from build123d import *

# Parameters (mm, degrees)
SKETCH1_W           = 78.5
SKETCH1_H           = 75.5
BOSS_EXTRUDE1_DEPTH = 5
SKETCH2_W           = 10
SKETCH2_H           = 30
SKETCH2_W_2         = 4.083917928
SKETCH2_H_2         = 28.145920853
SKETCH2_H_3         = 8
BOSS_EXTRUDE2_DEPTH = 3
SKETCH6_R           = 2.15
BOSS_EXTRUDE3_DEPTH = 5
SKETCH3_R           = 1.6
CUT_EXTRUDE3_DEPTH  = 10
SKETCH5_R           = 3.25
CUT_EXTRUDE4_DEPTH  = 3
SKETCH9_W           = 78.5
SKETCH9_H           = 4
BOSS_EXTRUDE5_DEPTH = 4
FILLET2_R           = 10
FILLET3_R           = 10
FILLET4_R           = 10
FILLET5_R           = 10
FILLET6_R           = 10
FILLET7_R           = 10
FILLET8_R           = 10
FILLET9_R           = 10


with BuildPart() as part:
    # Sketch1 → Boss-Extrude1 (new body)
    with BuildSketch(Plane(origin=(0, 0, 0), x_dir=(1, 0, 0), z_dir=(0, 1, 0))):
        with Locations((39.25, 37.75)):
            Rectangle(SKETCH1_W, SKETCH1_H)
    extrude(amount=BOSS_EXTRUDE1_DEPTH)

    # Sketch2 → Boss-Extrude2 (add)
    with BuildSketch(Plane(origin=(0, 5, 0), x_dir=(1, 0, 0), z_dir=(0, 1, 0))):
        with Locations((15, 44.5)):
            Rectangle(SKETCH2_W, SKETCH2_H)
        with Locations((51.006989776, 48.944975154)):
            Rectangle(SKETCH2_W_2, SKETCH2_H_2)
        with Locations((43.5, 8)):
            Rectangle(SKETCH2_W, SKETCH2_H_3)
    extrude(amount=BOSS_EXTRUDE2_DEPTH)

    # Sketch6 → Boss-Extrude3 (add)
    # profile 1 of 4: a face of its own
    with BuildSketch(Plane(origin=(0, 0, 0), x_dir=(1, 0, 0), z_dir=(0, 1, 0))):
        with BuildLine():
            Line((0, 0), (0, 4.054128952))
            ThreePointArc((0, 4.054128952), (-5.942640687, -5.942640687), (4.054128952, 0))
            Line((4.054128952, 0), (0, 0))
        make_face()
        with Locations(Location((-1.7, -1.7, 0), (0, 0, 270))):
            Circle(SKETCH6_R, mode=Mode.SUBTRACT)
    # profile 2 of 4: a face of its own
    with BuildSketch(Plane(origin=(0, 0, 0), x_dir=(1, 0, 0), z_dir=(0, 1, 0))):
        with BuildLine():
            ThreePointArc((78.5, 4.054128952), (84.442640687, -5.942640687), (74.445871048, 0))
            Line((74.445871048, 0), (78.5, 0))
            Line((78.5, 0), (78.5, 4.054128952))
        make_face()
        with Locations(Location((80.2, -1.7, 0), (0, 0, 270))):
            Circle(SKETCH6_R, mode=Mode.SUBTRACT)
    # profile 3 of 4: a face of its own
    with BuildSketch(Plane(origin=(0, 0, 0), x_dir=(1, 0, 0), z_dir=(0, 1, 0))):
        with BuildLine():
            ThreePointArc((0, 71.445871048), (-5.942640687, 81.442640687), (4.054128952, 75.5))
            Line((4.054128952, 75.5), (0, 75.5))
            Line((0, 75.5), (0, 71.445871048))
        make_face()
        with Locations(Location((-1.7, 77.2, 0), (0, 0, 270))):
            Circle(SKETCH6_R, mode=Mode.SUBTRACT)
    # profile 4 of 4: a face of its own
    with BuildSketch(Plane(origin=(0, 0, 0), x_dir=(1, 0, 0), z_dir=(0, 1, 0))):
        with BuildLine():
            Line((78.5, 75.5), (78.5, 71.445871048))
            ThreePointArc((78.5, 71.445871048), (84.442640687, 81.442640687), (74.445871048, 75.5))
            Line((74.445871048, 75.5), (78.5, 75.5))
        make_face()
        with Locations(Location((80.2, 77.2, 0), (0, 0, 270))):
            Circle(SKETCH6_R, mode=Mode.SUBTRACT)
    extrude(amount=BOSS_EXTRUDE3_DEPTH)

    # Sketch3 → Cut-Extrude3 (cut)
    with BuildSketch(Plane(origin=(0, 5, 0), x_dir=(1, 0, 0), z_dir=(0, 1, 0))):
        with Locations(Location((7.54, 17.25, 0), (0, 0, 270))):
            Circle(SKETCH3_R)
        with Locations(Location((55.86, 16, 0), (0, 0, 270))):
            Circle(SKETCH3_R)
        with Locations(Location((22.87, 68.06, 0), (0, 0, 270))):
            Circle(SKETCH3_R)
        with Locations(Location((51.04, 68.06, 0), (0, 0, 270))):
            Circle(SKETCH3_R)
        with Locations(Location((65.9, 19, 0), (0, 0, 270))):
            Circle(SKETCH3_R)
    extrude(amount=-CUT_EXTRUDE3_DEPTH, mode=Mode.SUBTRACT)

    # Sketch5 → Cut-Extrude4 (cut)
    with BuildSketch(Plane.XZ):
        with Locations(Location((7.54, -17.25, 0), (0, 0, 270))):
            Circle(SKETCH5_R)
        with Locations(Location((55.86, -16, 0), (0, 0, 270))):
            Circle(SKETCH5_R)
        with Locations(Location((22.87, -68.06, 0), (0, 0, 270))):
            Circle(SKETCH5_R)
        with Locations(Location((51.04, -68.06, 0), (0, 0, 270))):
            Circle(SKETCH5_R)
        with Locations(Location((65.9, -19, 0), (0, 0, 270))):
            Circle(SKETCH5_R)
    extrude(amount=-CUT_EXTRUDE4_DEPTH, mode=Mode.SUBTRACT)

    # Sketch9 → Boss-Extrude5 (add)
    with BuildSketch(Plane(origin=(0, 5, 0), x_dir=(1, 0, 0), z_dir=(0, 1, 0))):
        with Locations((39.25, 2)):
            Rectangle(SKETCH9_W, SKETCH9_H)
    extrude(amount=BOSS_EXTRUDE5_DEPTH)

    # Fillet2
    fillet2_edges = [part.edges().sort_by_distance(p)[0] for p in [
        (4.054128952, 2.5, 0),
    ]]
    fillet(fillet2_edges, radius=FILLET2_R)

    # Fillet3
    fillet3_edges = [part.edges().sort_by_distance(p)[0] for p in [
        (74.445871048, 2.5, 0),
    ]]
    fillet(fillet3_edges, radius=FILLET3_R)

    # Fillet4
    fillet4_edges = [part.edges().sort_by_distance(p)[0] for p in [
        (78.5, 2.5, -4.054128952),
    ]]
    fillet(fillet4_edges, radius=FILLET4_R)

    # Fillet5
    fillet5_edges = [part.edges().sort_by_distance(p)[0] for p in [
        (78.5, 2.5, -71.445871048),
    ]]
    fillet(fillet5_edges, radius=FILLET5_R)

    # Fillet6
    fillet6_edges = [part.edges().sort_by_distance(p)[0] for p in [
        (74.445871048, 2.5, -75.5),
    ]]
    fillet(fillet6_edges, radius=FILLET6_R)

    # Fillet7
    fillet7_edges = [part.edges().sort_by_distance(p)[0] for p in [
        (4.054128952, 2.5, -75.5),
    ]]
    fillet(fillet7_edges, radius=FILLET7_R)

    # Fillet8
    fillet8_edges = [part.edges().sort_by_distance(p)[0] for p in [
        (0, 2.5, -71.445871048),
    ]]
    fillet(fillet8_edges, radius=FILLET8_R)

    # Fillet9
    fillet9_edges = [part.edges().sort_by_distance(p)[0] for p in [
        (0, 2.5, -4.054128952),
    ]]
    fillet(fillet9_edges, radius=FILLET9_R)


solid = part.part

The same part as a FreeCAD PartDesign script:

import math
import FreeCAD as App
import Part
import Sketcher

V = App.Vector
Q = App.Units.Quantity


def edges_at(feature, points):
    """Names of the edges that pass closest to the given points."""
    edges = feature.Shape.Edges
    near = lambda p: min(range(len(edges)), key=lambda i: edges[i].distToShape(Part.Vertex(*p))[0])
    return sorted({f"Edge{near(p) + 1}" for p in points})


def add_polygon(sketch, points):
    """Adds a closed chain of lines whose ends are joined by coincident constraints."""
    first, n = sketch.GeometryCount, len(points)
    for a, b in zip(points, points[1:] + points[:1]):
        sketch.addGeometry(Part.LineSegment(App.Vector(*a, 0), App.Vector(*b, 0)), False)
    for i in range(n):
        sketch.addConstraint(Sketcher.Constraint("Coincident", first + i, 2, first + (i + 1) % n, 1))

doc = App.newDocument("Part")
body = doc.addObject("PartDesign::Body", "Body")

# Sketch on XZ plane
sketch1 = body.newObject("Sketcher::SketchObject", "Sketch")
sketch1.AttachmentSupport = (doc.getObject("XZ_Plane"), [""])
sketch1.MapMode = "FlatFace"
add_polygon(sketch1, [(0, -75.5), (0, 0), (78.5, 0), (78.5, -75.5)])  # lines 0-3
sketch1.addConstraint(Sketcher.Constraint("Vertical", 0))
sketch1.addConstraint(Sketcher.Constraint("Horizontal", 1))
sketch1.addConstraint(Sketcher.Constraint("Vertical", 2))
sketch1.addConstraint(Sketcher.Constraint("Horizontal", 3))
sketch1.addConstraint(Sketcher.Constraint("Coincident", 0, 2, -1, 1))
sketch1.addConstraint(Sketcher.Constraint("DistanceX", 1, 1, 1, 2, Q("78.5 mm")))
sketch1.addConstraint(Sketcher.Constraint("DistanceY", 0, 1, 0, 2, Q("75.5 mm")))
pad1 = body.newObject("PartDesign::Pad", "Pad")
pad1.Profile = sketch1
pad1.Length = 5
pad1.Reversed = True

# Sketch on XZ plane
sketch2 = body.newObject("Sketcher::SketchObject", "Sketch001")
sketch2.AttachmentSupport = (doc.getObject("XZ_Plane"), [""])
sketch2.MapMode = "FlatFace"
sketch2.AttachmentOffset = App.Placement(V(0, 0, -5), App.Rotation())
add_polygon(sketch2, [(10, -59.5), (10, -29.5), (20, -29.5), (20, -59.5)])  # lines 0-3
add_polygon(sketch2, [(48.965031, -63.017936), (48.965031, -34.872015), (53.048949, -34.872015), (53.048949, -63.017936)])  # lines 4-7
add_polygon(sketch2, [(38.5, -12), (38.5, -4), (48.5, -4), (48.5, -12)])  # lines 8-11
sketch2.addConstraint(Sketcher.Constraint("Vertical", 0))
sketch2.addConstraint(Sketcher.Constraint("Horizontal", 1))
sketch2.addConstraint(Sketcher.Constraint("Vertical", 2))
sketch2.addConstraint(Sketcher.Constraint("Horizontal", 3))
sketch2.addConstraint(Sketcher.Constraint("Vertical", 4))
sketch2.addConstraint(Sketcher.Constraint("Horizontal", 5))
sketch2.addConstraint(Sketcher.Constraint("Vertical", 6))
sketch2.addConstraint(Sketcher.Constraint("Horizontal", 7))
sketch2.addConstraint(Sketcher.Constraint("Vertical", 8))
sketch2.addConstraint(Sketcher.Constraint("Horizontal", 9))
sketch2.addConstraint(Sketcher.Constraint("Vertical", 10))
sketch2.addConstraint(Sketcher.Constraint("Horizontal", 11))
sketch2.addConstraint(Sketcher.Constraint("Equal", 3, 9))
sketch2.addConstraint(Sketcher.Constraint("DistanceX", 1, 1, 1, 2, Q("10 mm")))
sketch2.addConstraint(Sketcher.Constraint("DistanceY", 0, 1, 0, 2, Q("30 mm")))
sketch2.addConstraint(Sketcher.Constraint("DistanceY", 8, 1, 8, 2, Q("8 mm")))
sketch2.addConstraint(Sketcher.Constraint("DistanceX", -1, 1, 0, 2, Q("10 mm")))
sketch2.addConstraint(Sketcher.Constraint("DistanceY", 8, 2, -1, 1, Q("4 mm")))
sketch2.addConstraint(Sketcher.Constraint("DistanceY", 0, 2, -1, 1, Q("29.5 mm")))
sketch2.addConstraint(Sketcher.Constraint("DistanceX", -1, 1, 8, 2, Q("38.5 mm")))
sketch2.addConstraint(Sketcher.Constraint("DistanceY", 4, 1, 4, 2, Q("28.145921 mm")))
sketch2.addConstraint(Sketcher.Constraint("DistanceX", 5, 1, 5, 2, Q("4.083918 mm")))
sketch2.addConstraint(Sketcher.Constraint("DistanceX", -1, 1, 4, 2, Q("48.965031 mm")))
sketch2.addConstraint(Sketcher.Constraint("DistanceY", 4, 2, -1, 1, Q("34.872015 mm")))
pad2 = body.newObject("PartDesign::Pad", "Pad001")
pad2.Profile = sketch2
pad2.Length = 3
pad2.Reversed = True

# Sketch on XZ plane
sketch3 = body.newObject("Sketcher::SketchObject", "Sketch002")
sketch3.AttachmentSupport = (doc.getObject("XZ_Plane"), [""])
sketch3.MapMode = "FlatFace"
sketch3.addGeometry(Part.LineSegment(V(0, 0, 0), V(0, -4.054129, 0)), False)
sketch3.addGeometry(Part.ArcOfCircle(Part.Circle(V(-1.7, 1.7, 0), V(0, 0, 1), 6), math.radians(-16.45925), math.radians(286.45925)), False)
sketch3.addGeometry(Part.LineSegment(V(4.054129, 0, 0), V(0, 0, 0)), False)
sketch3.addGeometry(Part.Circle(V(-1.7, 1.7, 0), V(0, 0, 1), 2.15), False)
sketch3.addGeometry(Part.ArcOfCircle(Part.Circle(V(80.2, 1.7, 0), V(0, 0, 1), 6), math.radians(-106.45925), math.radians(196.45925)), False)
sketch3.addGeometry(Part.LineSegment(V(78.5, -4.054129, 0), V(78.5, 0, 0)), False)
sketch3.addGeometry(Part.LineSegment(V(78.5, 0, 0), V(74.445871, 0, 0)), False)
sketch3.addGeometry(Part.Circle(V(80.2, 1.7, 0), V(0, 0, 1), 2.15), False)
sketch3.addGeometry(Part.ArcOfCircle(Part.Circle(V(-1.7, -77.2, 0), V(0, 0, 1), 6), math.radians(73.54075), math.radians(376.45925)), False)
sketch3.addGeometry(Part.LineSegment(V(0, -71.445871, 0), V(0, -75.5, 0)), False)
sketch3.addGeometry(Part.LineSegment(V(0, -75.5, 0), V(4.054129, -75.5, 0)), False)
sketch3.addGeometry(Part.Circle(V(-1.7, -77.2, 0), V(0, 0, 1), 2.15), False)
sketch3.addGeometry(Part.LineSegment(V(78.5, -75.5, 0), V(78.5, -71.445871, 0)), False)
sketch3.addGeometry(Part.ArcOfCircle(Part.Circle(V(80.2, -77.2, 0), V(0, 0, 1), 6), math.radians(163.54075), math.radians(466.45925)), False)
sketch3.addGeometry(Part.LineSegment(V(74.445871, -75.5, 0), V(78.5, -75.5, 0)), False)
sketch3.addGeometry(Part.Circle(V(80.2, -77.2, 0), V(0, 0, 1), 2.15), False)
sketch3.addConstraint(Sketcher.Constraint("Coincident", 0, 2, 1, 2))
sketch3.addConstraint(Sketcher.Constraint("Coincident", 1, 1, 2, 1))
sketch3.addConstraint(Sketcher.Constraint("Coincident", 2, 2, 0, 1))
sketch3.addConstraint(Sketcher.Constraint("Coincident", 4, 1, 5, 1))
sketch3.addConstraint(Sketcher.Constraint("Coincident", 5, 2, 6, 1))
sketch3.addConstraint(Sketcher.Constraint("Coincident", 6, 2, 4, 2))
sketch3.addConstraint(Sketcher.Constraint("Coincident", 8, 1, 9, 1))
sketch3.addConstraint(Sketcher.Constraint("Coincident", 9, 2, 10, 1))
sketch3.addConstraint(Sketcher.Constraint("Coincident", 10, 2, 8, 2))
sketch3.addConstraint(Sketcher.Constraint("Coincident", 12, 2, 13, 2))
sketch3.addConstraint(Sketcher.Constraint("Coincident", 13, 1, 14, 1))
sketch3.addConstraint(Sketcher.Constraint("Coincident", 14, 2, 12, 1))
sketch3.addConstraint(Sketcher.Constraint("Vertical", 0))
sketch3.addConstraint(Sketcher.Constraint("Horizontal", 2))
sketch3.addConstraint(Sketcher.Constraint("Vertical", 5))
sketch3.addConstraint(Sketcher.Constraint("Horizontal", 6))
sketch3.addConstraint(Sketcher.Constraint("Vertical", 9))
sketch3.addConstraint(Sketcher.Constraint("Horizontal", 10))
sketch3.addConstraint(Sketcher.Constraint("Vertical", 12))
sketch3.addConstraint(Sketcher.Constraint("Horizontal", 14))
sketch3.addConstraint(Sketcher.Constraint("Coincident", 2, 2, -1, 1))
sketch3.addConstraint(Sketcher.Constraint("Coincident", 3, 3, 1, 3))
sketch3.addConstraint(Sketcher.Constraint("Coincident", 7, 3, 4, 3))
sketch3.addConstraint(Sketcher.Constraint("Coincident", 11, 3, 8, 3))
sketch3.addConstraint(Sketcher.Constraint("Coincident", 15, 3, 13, 3))
sketch3.addConstraint(Sketcher.Constraint("Equal", 1, 4))
sketch3.addConstraint(Sketcher.Constraint("Equal", 3, 7))
sketch3.addConstraint(Sketcher.Constraint("Equal", 4, 8))
sketch3.addConstraint(Sketcher.Constraint("Equal", 7, 11))
sketch3.addConstraint(Sketcher.Constraint("Equal", 8, 13))
sketch3.addConstraint(Sketcher.Constraint("Equal", 11, 15))
sketch3.addConstraint(Sketcher.Constraint("PointOnObject", 5, 2, -1))
sketch3.addConstraint(Sketcher.Constraint("PointOnObject", 8, 1, -2))
sketch3.addConstraint(Sketcher.Constraint("Horizontal", 3, 3, 4, 3))
sketch3.addConstraint(Sketcher.Constraint("Horizontal", 11, 3, 13, 3))
sketch3.addConstraint(Sketcher.Constraint("Horizontal", 0, 2, 4, 1))
sketch3.addConstraint(Sketcher.Constraint("Horizontal", 8, 1, 12, 2))
sketch3.addConstraint(Sketcher.Constraint("Horizontal", 10, 2, 13, 1))
sketch3.addConstraint(Sketcher.Constraint("Vertical", 3, 3, 8, 3))
sketch3.addConstraint(Sketcher.Constraint("Vertical", 7, 3, 13, 3))
sketch3.addConstraint(Sketcher.Constraint("Vertical", 1, 1, 10, 2))
sketch3.addConstraint(Sketcher.Constraint("Equal", 14, 0))
sketch3.addConstraint(Sketcher.Constraint("Radius", 1, Q("6 mm")))
sketch3.addConstraint(Sketcher.Constraint("Diameter", 3, Q("4.3 mm")))
sketch3.addConstraint(Sketcher.Constraint("DistanceX", 1, 3, -1, 1, Q("1.7 mm")))
sketch3.addConstraint(Sketcher.Constraint("DistanceX", -1, 1, 4, 3, Q("80.2 mm")))
sketch3.addConstraint(Sketcher.Constraint("DistanceY", 8, 3, -1, 1, Q("77.2 mm")))
pad3 = body.newObject("PartDesign::Pad", "Pad002")
pad3.Profile = sketch3
pad3.Length = 5
pad3.Reversed = True

# Sketch on XZ plane
sketch4 = body.newObject("Sketcher::SketchObject", "Sketch003")
sketch4.AttachmentSupport = (doc.getObject("XZ_Plane"), [""])
sketch4.MapMode = "FlatFace"
sketch4.AttachmentOffset = App.Placement(V(0, 0, -5), App.Rotation())
sketch4.addGeometry(Part.Circle(V(7.54, -17.25, 0), V(0, 0, 1), 1.6), False)
sketch4.addGeometry(Part.Circle(V(55.86, -16, 0), V(0, 0, 1), 1.6), False)
sketch4.addGeometry(Part.Circle(V(22.87, -68.06, 0), V(0, 0, 1), 1.6), False)
sketch4.addGeometry(Part.Circle(V(51.04, -68.06, 0), V(0, 0, 1), 1.6), False)
sketch4.addGeometry(Part.Circle(V(65.9, -19, 0), V(0, 0, 1), 1.6), False)
sketch4.addConstraint(Sketcher.Constraint("Equal", 0, 1))
sketch4.addConstraint(Sketcher.Constraint("Equal", 1, 2))
sketch4.addConstraint(Sketcher.Constraint("Equal", 2, 3))
sketch4.addConstraint(Sketcher.Constraint("Equal", 3, 4))
sketch4.addConstraint(Sketcher.Constraint("Horizontal", 2, 3, 3, 3))
sketch4.addConstraint(Sketcher.Constraint("Diameter", 0, Q("3.2 mm")))
sketch4.addConstraint(Sketcher.Constraint("DistanceY", 1, 3, -1, 1, Q("16 mm")))
sketch4.addConstraint(Sketcher.Constraint("DistanceY", 4, 3, -1, 1, Q("19 mm")))
sketch4.addConstraint(Sketcher.Constraint("DistanceX", -1, 1, 4, 3, Q("65.9 mm")))
sketch4.addConstraint(Sketcher.Constraint("DistanceX", 0, 3, 3, 3, Q("43.5 mm")))
sketch4.addConstraint(Sketcher.Constraint("DistanceX", -1, 1, 0, 3, Q("7.54 mm")))
sketch4.addConstraint(Sketcher.Constraint("DistanceY", 0, 3, -1, 1, Q("17.25 mm")))
sketch4.addConstraint(Sketcher.Constraint("DistanceX", -1, 1, 1, 3, Q("55.86 mm")))
sketch4.addConstraint(Sketcher.Constraint("DistanceX", -1, 1, 2, 3, Q("22.87 mm")))
sketch4.addConstraint(Sketcher.Constraint("DistanceY", 2, 3, -1, 1, Q("68.06 mm")))
pocket1 = body.newObject("PartDesign::Pocket", "Pocket")
pocket1.Profile = sketch4
pocket1.Length = 10
pocket1.Reversed = True

# Sketch on XZ plane
sketch5 = body.newObject("Sketcher::SketchObject", "Sketch004")
sketch5.AttachmentSupport = (doc.getObject("XZ_Plane"), [""])
sketch5.MapMode = "FlatFace"
sketch5.addGeometry(Part.Circle(V(7.54, -17.25, 0), V(0, 0, 1), 3.25), False)
sketch5.addGeometry(Part.Circle(V(55.86, -16, 0), V(0, 0, 1), 3.25), False)
sketch5.addGeometry(Part.Circle(V(22.87, -68.06, 0), V(0, 0, 1), 3.25), False)
sketch5.addGeometry(Part.Circle(V(51.04, -68.06, 0), V(0, 0, 1), 3.25), False)
sketch5.addGeometry(Part.Circle(V(65.9, -19, 0), V(0, 0, 1), 3.25), False)
sketch5.addConstraint(Sketcher.Constraint("Equal", 0, 1))
sketch5.addConstraint(Sketcher.Constraint("Equal", 1, 2))
sketch5.addConstraint(Sketcher.Constraint("Equal", 2, 3))
sketch5.addConstraint(Sketcher.Constraint("Equal", 3, 4))
sketch5.addConstraint(Sketcher.Constraint("Horizontal", 2, 3, 3, 3))
sketch5.addConstraint(Sketcher.Constraint("Diameter", 0, Q("6.5 mm")))
sketch5.addConstraint(Sketcher.Constraint("DistanceY", 1, 3, -1, 1, Q("16 mm")))
sketch5.addConstraint(Sketcher.Constraint("DistanceY", 4, 3, -1, 1, Q("19 mm")))
sketch5.addConstraint(Sketcher.Constraint("DistanceX", -1, 1, 4, 3, Q("65.9 mm")))
sketch5.addConstraint(Sketcher.Constraint("DistanceX", 0, 3, 3, 3, Q("43.5 mm")))
sketch5.addConstraint(Sketcher.Constraint("DistanceX", -1, 1, 0, 3, Q("7.54 mm")))
sketch5.addConstraint(Sketcher.Constraint("DistanceY", 0, 3, -1, 1, Q("17.25 mm")))
sketch5.addConstraint(Sketcher.Constraint("DistanceX", -1, 1, 1, 3, Q("55.86 mm")))
sketch5.addConstraint(Sketcher.Constraint("DistanceX", -1, 1, 2, 3, Q("22.87 mm")))
sketch5.addConstraint(Sketcher.Constraint("DistanceY", 2, 3, -1, 1, Q("68.06 mm")))
pocket2 = body.newObject("PartDesign::Pocket", "Pocket001")
pocket2.Profile = sketch5
pocket2.Length = 3

# Sketch on XZ plane
sketch6 = body.newObject("Sketcher::SketchObject", "Sketch005")
sketch6.AttachmentSupport = (doc.getObject("XZ_Plane"), [""])
sketch6.MapMode = "FlatFace"
sketch6.AttachmentOffset = App.Placement(V(0, 0, -5), App.Rotation())
add_polygon(sketch6, [(0, -4), (0, 0), (78.5, 0), (78.5, -4)])  # lines 0-3
sketch6.addConstraint(Sketcher.Constraint("Vertical", 0))
sketch6.addConstraint(Sketcher.Constraint("Horizontal", 1))
sketch6.addConstraint(Sketcher.Constraint("Vertical", 2))
sketch6.addConstraint(Sketcher.Constraint("Horizontal", 3))
sketch6.addConstraint(Sketcher.Constraint("Coincident", 0, 2, -1, 1))
sketch6.addConstraint(Sketcher.Constraint("DistanceY", 0, 1, 0, 2, Q("4 mm")))
sketch6.addConstraint(Sketcher.Constraint("DistanceX", 1, 1, 1, 2, Q("78.5 mm")))
pad4 = body.newObject("PartDesign::Pad", "Pad003")
pad4.Profile = sketch6
pad4.Length = 4
pad4.Reversed = True
doc.recompute()

fillet = body.newObject("PartDesign::Fillet", "Fillet")
fillet.Base = (pad4, edges_at(pad4, [(4.054, 2.5, 0)]))
fillet.Radius = 10
doc.recompute()

fillet2 = body.newObject("PartDesign::Fillet", "Fillet001")
fillet2.Base = (fillet, edges_at(fillet, [(74.446, 2.5, 0)]))
fillet2.Radius = 10
doc.recompute()

fillet3 = body.newObject("PartDesign::Fillet", "Fillet002")
fillet3.Base = (fillet2, edges_at(fillet2, [(78.5, 2.5, -4.054)]))
fillet3.Radius = 10
doc.recompute()

fillet4 = body.newObject("PartDesign::Fillet", "Fillet003")
fillet4.Base = (fillet3, edges_at(fillet3, [(78.5, 2.5, -71.446)]))
fillet4.Radius = 10
doc.recompute()

fillet5 = body.newObject("PartDesign::Fillet", "Fillet004")
fillet5.Base = (fillet4, edges_at(fillet4, [(74.446, 2.5, -75.5)]))
fillet5.Radius = 10
doc.recompute()

fillet6 = body.newObject("PartDesign::Fillet", "Fillet005")
fillet6.Base = (fillet5, edges_at(fillet5, [(4.054, 2.5, -75.5)]))
fillet6.Radius = 10
doc.recompute()

fillet7 = body.newObject("PartDesign::Fillet", "Fillet006")
fillet7.Base = (fillet6, edges_at(fillet6, [(0, 2.5, -71.446)]))
fillet7.Radius = 10
doc.recompute()

fillet8 = body.newObject("PartDesign::Fillet", "Fillet007")
fillet8.Base = (fillet7, edges_at(fillet7, [(0, 2.5, -4.054)]))
fillet8.Radius = 10

doc.recompute()
